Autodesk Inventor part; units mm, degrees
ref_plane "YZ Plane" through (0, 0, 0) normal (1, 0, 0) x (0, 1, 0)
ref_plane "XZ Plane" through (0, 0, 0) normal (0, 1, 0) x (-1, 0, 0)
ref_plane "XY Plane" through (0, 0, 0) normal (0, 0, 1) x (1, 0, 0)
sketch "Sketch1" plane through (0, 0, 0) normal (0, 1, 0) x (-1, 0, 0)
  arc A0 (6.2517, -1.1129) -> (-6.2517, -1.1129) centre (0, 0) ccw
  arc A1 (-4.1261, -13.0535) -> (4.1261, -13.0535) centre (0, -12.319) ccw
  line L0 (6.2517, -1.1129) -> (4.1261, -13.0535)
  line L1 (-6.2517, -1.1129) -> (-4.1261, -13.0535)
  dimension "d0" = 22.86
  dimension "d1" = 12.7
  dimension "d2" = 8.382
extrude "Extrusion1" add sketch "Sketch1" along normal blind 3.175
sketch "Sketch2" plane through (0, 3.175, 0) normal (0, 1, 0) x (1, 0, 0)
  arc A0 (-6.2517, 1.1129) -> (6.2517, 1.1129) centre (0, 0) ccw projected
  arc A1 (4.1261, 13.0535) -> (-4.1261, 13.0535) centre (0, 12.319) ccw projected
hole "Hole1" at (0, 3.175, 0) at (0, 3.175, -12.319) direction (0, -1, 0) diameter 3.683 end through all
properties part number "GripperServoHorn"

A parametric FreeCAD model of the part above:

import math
import FreeCAD as App
import Part
import Sketcher
from FreeCAD import Vector
Q = App.Units.Quantity

doc = App.newDocument("Part")
body = doc.addObject("PartDesign::Body", "Body")

# Sketch on XZ plane
sketch1 = body.newObject("Sketcher::SketchObject", "Sketch")
sketch1.AttachmentSupport = (doc.getObject("XZ_Plane"), [""])
sketch1.MapMode = "FlatFace"
sketch1.addGeometry([
    Part.LineSegment(Vector(-4.1261, -13.0535, 0), Vector(-6.2517, -1.1129, 0)),
    Part.ArcOfCircle(Part.Circle(Vector(0, 0, 0), Vector(0, 0, 1), 6.349984), math.radians(-10.093805), math.radians(190.093805)),
    Part.LineSegment(Vector(6.2517, -1.1129, 0), Vector(4.1261, -13.0535, 0)),
    Part.ArcOfCircle(Part.Circle(Vector(0, -12.319, 0), Vector(0, 0, 1), 4.190965), math.radians(-169.906331), math.radians(-10.093669)),
], False)
sketch1.addConstraint([
    Sketcher.Constraint("Tangent", 0, 2, 1, 2),
    Sketcher.Constraint("Tangent", 1, 1, 2, 1),
    Sketcher.Constraint("Tangent", 2, 2, 3, 2),
    Sketcher.Constraint("Tangent", 3, 1, 0, 1),
    Sketcher.Constraint("Coincident", 1, 3, -1, 1),
    Sketcher.Constraint("PointOnObject", 3, 3, -2),
    Sketcher.Constraint("Radius", 1, Q("0.25 in")),
    Sketcher.Constraint("Radius", 3, Q("0.165 in")),
    Sketcher.Constraint("DistanceY", 3, 3, -1, 1, Q("0.485 in")),
])
pad1 = body.newObject("PartDesign::Pad", "Pad")
pad1.Profile = sketch1
pad1.Length = Q("0.125 in")
pad1.Reversed = True

# Sketch on XZ plane
sketch2 = body.newObject("Sketcher::SketchObject", "Sketch001")
sketch2.AttachmentSupport = (doc.getObject("XZ_Plane"), [""])
sketch2.MapMode = "FlatFace"
sketch2.AttachmentOffset = App.Placement(Vector(0, 0, -0.125 * 25.4), App.Rotation())
sketch2.addGeometry([
    Part.Circle(Vector(0, 0, 0), Vector(0, 0, 1), 1.8415),
    Part.Circle(Vector(0, -12.319, 0), Vector(0, 0, 1), 1.8415),
], False)
sketch2.addConstraint([
    Sketcher.Constraint("Coincident", 0, 3, -1, 1),
    Sketcher.Constraint("Equal", 0, 1),
    Sketcher.Constraint("PointOnObject", 1, 3, -2),
    Sketcher.Constraint("Diameter", 0, Q("0.145 in")),
    Sketcher.Constraint("DistanceY", 1, 3, -1, 1, Q("0.485 in")),
])
doc.recompute()
hole = body.newObject("PartDesign::Hole", "Hole")
hole.Profile = sketch2
hole.ThreadType = "None"
hole.Diameter = Q("0.145 in")
hole.DepthType = "ThroughAll"
hole.Reversed = True

doc.recompute()
